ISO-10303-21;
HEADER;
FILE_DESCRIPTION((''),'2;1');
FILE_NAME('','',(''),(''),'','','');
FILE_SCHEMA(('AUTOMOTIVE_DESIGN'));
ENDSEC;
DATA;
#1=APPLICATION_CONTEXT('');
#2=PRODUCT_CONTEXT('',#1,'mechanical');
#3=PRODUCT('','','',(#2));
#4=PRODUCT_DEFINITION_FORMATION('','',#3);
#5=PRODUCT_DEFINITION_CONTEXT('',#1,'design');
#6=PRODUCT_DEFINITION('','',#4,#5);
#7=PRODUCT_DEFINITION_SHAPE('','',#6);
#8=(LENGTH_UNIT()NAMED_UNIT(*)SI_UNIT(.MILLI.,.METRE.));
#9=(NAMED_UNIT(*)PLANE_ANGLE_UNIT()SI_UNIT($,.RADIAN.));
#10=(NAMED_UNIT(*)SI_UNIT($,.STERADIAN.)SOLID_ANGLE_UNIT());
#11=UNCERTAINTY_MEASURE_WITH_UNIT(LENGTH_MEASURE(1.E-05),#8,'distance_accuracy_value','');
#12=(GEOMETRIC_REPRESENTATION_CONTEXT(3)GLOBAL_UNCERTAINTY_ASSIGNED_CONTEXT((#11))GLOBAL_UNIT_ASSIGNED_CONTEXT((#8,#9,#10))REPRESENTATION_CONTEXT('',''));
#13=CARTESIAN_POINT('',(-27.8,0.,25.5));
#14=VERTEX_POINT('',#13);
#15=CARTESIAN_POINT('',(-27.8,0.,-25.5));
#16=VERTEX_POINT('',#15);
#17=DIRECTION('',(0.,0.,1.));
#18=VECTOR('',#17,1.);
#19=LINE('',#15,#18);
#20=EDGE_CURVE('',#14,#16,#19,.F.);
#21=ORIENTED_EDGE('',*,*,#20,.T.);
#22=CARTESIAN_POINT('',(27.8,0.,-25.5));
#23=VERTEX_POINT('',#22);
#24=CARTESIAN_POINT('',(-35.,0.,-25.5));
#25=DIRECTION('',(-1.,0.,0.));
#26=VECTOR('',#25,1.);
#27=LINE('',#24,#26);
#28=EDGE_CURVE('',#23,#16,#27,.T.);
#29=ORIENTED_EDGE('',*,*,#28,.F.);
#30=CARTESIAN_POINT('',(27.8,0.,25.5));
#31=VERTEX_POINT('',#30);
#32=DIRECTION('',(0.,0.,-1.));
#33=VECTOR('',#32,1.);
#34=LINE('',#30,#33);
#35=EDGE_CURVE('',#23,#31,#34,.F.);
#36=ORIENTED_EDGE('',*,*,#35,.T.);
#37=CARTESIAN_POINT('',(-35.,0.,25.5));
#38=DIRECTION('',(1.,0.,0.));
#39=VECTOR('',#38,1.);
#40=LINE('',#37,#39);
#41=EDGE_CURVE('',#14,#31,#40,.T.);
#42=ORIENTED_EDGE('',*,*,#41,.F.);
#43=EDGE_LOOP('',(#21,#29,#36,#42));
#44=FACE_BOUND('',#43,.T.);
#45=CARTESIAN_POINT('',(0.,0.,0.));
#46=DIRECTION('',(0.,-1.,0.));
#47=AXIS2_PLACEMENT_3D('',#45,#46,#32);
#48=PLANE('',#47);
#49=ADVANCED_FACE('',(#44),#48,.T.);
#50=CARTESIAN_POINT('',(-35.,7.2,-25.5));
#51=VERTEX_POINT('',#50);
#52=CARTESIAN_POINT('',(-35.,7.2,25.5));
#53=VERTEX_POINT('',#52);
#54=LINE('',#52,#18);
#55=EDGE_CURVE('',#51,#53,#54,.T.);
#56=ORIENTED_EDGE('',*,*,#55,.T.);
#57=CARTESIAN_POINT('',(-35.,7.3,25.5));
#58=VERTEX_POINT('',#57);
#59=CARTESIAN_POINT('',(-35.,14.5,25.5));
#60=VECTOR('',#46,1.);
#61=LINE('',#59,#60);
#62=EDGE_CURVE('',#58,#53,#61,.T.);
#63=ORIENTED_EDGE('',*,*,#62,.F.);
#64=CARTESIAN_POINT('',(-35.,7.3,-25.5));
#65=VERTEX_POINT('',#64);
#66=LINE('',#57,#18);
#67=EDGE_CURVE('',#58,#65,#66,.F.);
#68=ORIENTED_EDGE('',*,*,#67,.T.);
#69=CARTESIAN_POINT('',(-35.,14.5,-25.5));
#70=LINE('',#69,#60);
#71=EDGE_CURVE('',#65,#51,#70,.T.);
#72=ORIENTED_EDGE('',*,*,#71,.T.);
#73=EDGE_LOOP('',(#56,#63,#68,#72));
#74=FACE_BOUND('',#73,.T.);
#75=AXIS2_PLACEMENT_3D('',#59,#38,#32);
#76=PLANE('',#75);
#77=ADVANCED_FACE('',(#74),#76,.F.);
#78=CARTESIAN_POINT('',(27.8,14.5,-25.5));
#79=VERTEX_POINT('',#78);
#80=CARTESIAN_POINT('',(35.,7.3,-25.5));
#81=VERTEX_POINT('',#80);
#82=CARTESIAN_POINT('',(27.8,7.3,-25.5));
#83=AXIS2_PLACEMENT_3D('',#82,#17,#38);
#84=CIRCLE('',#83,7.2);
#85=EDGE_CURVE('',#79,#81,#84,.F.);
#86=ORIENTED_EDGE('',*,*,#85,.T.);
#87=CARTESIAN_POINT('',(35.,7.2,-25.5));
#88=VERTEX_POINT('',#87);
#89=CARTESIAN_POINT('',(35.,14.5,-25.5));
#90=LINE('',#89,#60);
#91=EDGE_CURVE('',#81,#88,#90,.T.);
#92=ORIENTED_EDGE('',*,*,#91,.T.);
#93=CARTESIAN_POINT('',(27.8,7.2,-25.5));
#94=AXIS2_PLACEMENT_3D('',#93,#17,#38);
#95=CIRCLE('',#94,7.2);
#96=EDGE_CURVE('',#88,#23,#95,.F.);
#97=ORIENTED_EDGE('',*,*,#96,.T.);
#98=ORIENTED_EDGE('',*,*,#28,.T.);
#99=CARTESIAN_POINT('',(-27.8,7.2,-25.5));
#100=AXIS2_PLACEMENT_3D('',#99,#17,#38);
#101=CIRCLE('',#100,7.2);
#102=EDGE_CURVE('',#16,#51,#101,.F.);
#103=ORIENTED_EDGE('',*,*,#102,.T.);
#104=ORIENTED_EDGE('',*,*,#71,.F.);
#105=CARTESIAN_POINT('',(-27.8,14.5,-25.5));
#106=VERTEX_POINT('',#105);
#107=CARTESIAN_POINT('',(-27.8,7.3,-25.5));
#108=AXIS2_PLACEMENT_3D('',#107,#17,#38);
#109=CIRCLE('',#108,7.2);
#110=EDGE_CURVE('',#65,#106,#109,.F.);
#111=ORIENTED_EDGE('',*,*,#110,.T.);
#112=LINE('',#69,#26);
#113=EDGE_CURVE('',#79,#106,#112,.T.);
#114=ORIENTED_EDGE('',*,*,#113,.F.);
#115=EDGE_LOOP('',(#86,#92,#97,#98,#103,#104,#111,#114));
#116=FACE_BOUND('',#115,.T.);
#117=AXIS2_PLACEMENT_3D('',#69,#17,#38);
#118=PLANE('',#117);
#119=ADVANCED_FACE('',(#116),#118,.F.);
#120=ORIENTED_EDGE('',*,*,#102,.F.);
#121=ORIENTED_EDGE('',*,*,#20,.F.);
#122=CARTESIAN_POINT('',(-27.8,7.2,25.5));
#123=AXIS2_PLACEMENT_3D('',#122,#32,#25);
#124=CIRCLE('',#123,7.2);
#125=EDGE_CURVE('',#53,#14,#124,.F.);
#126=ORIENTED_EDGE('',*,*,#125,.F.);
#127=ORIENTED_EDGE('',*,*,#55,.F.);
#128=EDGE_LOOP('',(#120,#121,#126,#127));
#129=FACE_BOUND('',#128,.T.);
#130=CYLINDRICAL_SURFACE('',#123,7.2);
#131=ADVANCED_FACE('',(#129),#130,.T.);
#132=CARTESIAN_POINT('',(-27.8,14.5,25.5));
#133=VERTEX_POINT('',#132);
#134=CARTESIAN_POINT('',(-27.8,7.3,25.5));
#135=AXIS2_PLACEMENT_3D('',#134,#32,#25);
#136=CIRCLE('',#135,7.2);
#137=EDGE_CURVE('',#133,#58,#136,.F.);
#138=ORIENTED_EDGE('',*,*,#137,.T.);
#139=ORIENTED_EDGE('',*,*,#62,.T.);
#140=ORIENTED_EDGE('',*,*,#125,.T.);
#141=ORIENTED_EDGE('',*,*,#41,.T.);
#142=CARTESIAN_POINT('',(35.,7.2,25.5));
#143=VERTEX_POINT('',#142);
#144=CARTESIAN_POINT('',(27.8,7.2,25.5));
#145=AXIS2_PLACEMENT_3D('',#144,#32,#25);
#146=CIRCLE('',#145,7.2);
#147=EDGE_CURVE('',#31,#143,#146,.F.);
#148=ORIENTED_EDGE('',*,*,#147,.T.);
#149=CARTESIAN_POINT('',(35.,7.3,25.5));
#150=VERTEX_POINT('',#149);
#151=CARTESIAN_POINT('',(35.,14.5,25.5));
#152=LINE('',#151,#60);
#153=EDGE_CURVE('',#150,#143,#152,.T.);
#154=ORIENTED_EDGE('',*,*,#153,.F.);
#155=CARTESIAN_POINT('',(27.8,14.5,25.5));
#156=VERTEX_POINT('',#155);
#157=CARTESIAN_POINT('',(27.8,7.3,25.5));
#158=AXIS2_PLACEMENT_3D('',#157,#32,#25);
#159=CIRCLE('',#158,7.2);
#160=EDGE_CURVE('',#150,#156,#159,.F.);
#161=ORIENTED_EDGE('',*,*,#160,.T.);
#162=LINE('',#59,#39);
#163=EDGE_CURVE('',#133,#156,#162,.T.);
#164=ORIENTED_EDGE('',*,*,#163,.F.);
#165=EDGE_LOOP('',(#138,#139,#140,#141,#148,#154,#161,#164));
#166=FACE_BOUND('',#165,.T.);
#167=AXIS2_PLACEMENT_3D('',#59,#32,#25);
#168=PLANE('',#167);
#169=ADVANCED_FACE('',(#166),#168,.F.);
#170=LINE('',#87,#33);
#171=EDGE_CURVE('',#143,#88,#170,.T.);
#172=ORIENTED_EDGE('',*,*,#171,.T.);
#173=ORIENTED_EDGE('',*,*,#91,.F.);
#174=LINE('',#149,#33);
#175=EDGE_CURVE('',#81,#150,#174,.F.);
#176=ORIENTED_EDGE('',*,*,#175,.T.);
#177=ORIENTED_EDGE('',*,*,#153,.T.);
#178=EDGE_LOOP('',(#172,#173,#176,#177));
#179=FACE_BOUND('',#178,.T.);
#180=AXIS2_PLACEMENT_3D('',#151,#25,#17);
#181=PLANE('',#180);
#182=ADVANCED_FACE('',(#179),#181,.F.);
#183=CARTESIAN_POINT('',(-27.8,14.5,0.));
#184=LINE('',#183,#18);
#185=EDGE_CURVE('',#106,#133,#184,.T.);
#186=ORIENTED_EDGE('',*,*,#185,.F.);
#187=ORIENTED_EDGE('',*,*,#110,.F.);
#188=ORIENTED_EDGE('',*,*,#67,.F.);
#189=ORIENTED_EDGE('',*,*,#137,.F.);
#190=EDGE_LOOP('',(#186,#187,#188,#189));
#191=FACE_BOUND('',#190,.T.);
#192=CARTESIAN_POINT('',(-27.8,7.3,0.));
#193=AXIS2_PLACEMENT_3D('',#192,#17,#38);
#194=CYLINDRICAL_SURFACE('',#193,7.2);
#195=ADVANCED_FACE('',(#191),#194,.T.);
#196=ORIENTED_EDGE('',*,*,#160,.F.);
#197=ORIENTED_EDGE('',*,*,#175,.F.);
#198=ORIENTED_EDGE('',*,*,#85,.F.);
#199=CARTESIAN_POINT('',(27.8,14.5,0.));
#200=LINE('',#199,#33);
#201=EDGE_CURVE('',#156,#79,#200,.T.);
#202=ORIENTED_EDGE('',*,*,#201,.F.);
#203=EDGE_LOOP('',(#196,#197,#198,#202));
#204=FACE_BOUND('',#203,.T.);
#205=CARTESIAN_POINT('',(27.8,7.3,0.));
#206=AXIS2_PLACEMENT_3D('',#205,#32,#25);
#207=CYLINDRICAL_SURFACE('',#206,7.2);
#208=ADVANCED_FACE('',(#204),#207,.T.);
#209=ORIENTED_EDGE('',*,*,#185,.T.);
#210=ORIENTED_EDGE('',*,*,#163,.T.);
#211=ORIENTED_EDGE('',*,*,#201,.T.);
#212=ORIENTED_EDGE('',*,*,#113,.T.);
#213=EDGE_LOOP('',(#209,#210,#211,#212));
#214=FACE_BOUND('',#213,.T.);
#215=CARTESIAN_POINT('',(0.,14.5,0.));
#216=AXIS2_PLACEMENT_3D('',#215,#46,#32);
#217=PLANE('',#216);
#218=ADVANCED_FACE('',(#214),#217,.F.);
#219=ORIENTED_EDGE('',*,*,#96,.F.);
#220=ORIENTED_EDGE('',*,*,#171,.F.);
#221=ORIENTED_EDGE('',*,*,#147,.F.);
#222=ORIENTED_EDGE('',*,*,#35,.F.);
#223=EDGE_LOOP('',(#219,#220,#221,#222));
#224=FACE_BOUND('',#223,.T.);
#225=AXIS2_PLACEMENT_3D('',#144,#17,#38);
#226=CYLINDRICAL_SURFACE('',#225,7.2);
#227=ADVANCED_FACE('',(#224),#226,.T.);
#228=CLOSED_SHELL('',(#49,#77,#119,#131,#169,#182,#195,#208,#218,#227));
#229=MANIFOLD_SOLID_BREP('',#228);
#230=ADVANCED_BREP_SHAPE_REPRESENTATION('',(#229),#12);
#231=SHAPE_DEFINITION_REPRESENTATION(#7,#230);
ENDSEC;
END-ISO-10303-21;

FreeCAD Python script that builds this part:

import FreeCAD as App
import Part
import Sketcher

V = App.Vector


def edges_at(feature, points):
    """Names of the edges that pass closest to the given points."""
    edges = feature.Shape.Edges
    near = lambda p: min(range(len(edges)), key=lambda i: edges[i].distToShape(Part.Vertex(*p))[0])
    return sorted({f"Edge{near(p) + 1}" for p in points})

doc = App.newDocument("Part")
body = doc.addObject("PartDesign::Body", "Body")

# Sketch on XZ plane
sketch1 = body.newObject("Sketcher::SketchObject", "Sketch")
sketch1.AttachmentSupport = (doc.getObject("XZ_Plane"), [""])
sketch1.MapMode = "FlatFace"
sketch1.addGeometry(Part.LineSegment(V(-35, -26, 0), V(-35, 26, 0)), False)
sketch1.addGeometry(Part.LineSegment(V(-35, 26, 0), V(35, 26, 0)), False)
sketch1.addGeometry(Part.LineSegment(V(35, 26, 0), V(35, -26, 0)), False)
sketch1.addGeometry(Part.LineSegment(V(35, -26, 0), V(-35, -26, 0)), False)
sketch1.addConstraint(Sketcher.Constraint("Coincident", 0, 2, 1, 1))
sketch1.addConstraint(Sketcher.Constraint("Coincident", 1, 2, 2, 1))
sketch1.addConstraint(Sketcher.Constraint("Coincident", 2, 2, 3, 1))
sketch1.addConstraint(Sketcher.Constraint("Coincident", 3, 2, 0, 1))
sketch1.addConstraint(Sketcher.Constraint("Vertical", 0))
sketch1.addConstraint(Sketcher.Constraint("Horizontal", 1))
sketch1.addConstraint(Sketcher.Constraint("Vertical", 2))
sketch1.addConstraint(Sketcher.Constraint("Horizontal", 3))
sketch1.addConstraint(Sketcher.Constraint("Symmetric", 0, 2, 2, 2, -1, 1))
sketch1.addConstraint(Sketcher.Constraint("DistanceX", 1, 1, 1, 2, 70.0))
sketch1.addConstraint(Sketcher.Constraint("DistanceY", 0, 1, 0, 2, 51.0))
pad1 = body.newObject("PartDesign::Pad", "Pad")
pad1.Profile = sketch1
pad1.Length = 14.5
pad1.Reversed = True
doc.recompute()

fillet = body.newObject("PartDesign::Fillet", "Fillet")
fillet.Base = (pad1, edges_at(pad1, [
    (-35, 14.5, 0),
    (35, 14.5, 0),
    (-35, 0, 0),
    (35, 0, 0),
]))
fillet.Radius = 7.2

doc.recompute()
